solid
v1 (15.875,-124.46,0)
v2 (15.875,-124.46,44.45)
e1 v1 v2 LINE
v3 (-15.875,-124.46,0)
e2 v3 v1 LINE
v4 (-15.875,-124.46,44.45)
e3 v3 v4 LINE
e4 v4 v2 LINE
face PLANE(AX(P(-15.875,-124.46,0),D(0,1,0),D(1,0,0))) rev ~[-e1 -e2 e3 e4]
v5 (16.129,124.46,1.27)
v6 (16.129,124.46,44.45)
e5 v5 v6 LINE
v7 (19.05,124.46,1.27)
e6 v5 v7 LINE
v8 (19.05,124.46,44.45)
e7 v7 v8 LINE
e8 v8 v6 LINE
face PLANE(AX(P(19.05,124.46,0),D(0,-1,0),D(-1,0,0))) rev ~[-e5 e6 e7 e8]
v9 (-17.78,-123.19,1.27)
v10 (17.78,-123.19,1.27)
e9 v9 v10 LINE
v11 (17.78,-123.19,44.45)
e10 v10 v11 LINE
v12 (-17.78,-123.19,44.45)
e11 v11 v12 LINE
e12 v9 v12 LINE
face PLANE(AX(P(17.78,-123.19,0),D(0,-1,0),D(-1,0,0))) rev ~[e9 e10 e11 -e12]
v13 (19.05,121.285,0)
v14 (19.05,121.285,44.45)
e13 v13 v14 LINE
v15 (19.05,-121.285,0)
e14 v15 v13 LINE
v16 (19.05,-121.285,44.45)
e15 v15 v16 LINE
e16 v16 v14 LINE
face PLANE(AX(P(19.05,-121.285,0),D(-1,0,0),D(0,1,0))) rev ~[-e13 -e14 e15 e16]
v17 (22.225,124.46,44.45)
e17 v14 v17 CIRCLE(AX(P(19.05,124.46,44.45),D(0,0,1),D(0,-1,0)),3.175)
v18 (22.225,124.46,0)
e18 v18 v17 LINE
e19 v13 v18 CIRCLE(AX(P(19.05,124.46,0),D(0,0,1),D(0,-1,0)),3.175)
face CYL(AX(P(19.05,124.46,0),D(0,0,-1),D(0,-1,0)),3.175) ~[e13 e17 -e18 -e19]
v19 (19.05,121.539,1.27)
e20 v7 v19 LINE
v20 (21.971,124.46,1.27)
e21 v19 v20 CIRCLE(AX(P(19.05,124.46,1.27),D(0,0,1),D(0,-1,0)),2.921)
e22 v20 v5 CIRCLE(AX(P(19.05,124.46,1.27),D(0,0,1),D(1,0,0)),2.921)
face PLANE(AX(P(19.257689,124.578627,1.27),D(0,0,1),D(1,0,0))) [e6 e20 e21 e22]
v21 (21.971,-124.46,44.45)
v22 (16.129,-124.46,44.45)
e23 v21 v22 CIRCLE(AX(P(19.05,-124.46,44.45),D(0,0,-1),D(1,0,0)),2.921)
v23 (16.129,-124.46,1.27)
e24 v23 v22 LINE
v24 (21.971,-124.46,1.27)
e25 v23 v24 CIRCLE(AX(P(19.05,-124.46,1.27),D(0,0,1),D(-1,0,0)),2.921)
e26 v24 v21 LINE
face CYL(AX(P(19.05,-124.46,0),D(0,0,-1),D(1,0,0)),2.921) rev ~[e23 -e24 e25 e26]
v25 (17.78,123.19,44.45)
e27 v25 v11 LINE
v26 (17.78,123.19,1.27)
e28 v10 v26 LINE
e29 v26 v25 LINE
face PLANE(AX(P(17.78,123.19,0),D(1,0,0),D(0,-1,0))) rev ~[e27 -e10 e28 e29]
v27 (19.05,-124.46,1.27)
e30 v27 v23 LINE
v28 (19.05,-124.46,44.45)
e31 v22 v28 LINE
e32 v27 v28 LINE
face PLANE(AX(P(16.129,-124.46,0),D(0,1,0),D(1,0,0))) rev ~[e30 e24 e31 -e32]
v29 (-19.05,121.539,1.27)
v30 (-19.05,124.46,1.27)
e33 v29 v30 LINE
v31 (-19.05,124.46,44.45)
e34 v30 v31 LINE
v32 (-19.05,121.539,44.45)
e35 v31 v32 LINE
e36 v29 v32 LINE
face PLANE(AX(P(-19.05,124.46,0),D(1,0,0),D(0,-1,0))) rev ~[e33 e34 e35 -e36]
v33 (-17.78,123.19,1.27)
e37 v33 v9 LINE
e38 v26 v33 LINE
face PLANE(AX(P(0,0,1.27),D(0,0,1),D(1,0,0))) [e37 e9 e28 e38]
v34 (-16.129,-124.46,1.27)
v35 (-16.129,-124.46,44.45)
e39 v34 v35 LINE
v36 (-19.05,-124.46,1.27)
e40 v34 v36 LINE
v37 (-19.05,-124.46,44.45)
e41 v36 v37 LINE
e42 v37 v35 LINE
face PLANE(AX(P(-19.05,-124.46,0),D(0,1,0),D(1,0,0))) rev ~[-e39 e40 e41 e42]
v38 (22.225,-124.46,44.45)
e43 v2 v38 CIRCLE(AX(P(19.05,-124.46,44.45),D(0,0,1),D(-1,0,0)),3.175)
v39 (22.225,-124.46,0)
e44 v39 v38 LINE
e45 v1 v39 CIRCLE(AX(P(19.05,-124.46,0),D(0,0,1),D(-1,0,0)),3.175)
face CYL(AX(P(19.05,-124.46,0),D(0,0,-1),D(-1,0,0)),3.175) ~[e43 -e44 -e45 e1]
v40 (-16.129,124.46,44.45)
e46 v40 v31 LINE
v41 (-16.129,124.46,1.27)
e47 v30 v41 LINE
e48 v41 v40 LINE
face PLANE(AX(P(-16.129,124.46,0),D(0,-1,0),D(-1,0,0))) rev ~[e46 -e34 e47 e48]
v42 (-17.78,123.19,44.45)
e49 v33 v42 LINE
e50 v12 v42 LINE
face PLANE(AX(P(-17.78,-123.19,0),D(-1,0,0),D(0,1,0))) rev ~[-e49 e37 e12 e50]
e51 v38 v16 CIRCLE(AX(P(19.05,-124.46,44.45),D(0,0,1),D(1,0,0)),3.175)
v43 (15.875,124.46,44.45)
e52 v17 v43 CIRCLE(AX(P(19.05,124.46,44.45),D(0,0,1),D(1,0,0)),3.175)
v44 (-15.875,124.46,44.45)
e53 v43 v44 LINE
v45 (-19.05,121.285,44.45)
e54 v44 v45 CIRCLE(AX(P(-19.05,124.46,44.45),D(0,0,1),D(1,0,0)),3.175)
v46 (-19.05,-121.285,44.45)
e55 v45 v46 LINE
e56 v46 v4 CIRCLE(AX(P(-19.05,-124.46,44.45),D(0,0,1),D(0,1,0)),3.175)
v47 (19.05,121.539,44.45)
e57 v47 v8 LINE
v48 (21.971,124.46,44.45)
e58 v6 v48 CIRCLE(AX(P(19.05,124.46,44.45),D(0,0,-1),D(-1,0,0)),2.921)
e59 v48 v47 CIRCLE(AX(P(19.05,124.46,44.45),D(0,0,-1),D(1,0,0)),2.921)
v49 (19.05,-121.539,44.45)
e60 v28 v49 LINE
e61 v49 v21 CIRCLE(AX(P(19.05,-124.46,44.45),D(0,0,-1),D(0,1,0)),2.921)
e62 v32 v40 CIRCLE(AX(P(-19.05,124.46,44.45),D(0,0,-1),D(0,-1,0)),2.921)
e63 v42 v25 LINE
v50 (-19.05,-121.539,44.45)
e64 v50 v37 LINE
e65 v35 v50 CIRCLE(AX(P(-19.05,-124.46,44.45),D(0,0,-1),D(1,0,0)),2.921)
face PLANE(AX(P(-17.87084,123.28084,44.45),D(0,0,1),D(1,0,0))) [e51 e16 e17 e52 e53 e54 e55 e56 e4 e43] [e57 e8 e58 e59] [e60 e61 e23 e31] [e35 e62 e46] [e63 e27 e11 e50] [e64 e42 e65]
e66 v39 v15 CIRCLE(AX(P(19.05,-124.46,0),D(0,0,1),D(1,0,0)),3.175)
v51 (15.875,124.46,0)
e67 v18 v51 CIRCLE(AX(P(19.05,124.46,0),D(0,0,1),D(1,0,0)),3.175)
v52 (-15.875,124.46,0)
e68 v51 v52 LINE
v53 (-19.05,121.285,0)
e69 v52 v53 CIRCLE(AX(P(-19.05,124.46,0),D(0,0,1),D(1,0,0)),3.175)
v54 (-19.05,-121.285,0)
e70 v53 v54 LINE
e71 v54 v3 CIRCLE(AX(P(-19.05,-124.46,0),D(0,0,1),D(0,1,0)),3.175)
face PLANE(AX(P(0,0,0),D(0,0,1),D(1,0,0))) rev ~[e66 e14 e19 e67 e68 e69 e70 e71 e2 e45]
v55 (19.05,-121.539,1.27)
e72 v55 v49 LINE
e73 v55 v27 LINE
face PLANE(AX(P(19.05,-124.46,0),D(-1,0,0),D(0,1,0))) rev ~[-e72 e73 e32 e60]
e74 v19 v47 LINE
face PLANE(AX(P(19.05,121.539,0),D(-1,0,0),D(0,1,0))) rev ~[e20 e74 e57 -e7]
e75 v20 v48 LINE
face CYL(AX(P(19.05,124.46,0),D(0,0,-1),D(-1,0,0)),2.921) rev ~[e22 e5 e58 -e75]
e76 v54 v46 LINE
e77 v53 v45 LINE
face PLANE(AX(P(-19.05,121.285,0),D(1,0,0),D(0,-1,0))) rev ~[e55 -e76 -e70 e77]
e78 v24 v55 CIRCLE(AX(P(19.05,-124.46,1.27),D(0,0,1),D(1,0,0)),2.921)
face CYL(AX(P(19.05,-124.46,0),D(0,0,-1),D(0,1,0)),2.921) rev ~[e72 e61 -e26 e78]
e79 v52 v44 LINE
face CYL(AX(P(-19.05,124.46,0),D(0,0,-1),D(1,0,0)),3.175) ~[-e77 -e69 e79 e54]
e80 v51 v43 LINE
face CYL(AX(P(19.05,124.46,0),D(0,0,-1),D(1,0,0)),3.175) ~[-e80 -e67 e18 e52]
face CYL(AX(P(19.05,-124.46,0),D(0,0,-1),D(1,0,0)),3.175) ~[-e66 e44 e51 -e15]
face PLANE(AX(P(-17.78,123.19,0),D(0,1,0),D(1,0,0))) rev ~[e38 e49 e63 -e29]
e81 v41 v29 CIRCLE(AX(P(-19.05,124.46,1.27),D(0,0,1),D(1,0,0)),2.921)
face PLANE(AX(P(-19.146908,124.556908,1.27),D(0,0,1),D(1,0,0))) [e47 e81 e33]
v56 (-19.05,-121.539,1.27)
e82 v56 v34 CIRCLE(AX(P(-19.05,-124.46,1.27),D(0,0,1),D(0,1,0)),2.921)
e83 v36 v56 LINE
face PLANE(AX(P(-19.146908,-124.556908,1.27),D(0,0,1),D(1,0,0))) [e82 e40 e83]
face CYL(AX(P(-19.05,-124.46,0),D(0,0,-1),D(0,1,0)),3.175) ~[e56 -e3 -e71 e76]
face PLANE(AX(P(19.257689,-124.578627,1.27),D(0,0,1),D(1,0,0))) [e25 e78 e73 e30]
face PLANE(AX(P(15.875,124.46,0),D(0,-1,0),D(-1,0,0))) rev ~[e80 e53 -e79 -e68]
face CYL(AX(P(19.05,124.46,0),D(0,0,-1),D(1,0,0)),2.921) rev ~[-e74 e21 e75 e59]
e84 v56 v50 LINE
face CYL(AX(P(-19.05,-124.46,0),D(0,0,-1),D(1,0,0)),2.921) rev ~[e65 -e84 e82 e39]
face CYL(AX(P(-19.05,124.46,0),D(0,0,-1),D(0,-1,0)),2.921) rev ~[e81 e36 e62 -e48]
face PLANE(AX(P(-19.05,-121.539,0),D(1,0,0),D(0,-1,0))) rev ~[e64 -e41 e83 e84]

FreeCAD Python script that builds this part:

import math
import FreeCAD as App
import Part
import Sketcher
from FreeCAD import Vector
Q = App.Units.Quantity

doc = App.newDocument("Part")
body = doc.addObject("PartDesign::Body", "Body")

# Sketch on XY plane
sketch1 = body.newObject("Sketcher::SketchObject", "Sketch")
sketch1.AttachmentSupport = (doc.getObject("XY_Plane"), [""])
sketch1.MapMode = "FlatFace"
sketch1.addGeometry([
    Part.ArcOfCircle(Part.Circle(Vector(-19.1, 124.5, 0), Vector(0, 0, 1), 3.2), math.radians(0), math.radians(270)),  # 0
    Part.LineSegment(Vector(-19.1, 121.3, 0), Vector(-19.1, -121.3, 0)),  # 1
    Part.ArcOfCircle(Part.Circle(Vector(-19.1, -124.5, 0), Vector(0, 0, 1), 3.2), math.radians(90), math.radians(360)),  # 2
    Part.LineSegment(Vector(-15.9, -124.5, 0), Vector(15.9, -124.5, 0)),  # 3
    Part.ArcOfCircle(Part.Circle(Vector(19.1, -124.5, 0), Vector(0, 0, 1), 3.2), math.radians(180), math.radians(360)),  # 4
    Part.ArcOfCircle(Part.Circle(Vector(19.1, -124.5, 0), Vector(0, 0, 1), 3.2), math.radians(0), math.radians(90)),  # 5
    Part.LineSegment(Vector(19.1, -121.3, 0), Vector(19.1, 121.3, 0)),  # 6
    Part.ArcOfCircle(Part.Circle(Vector(19.1, 124.5, 0), Vector(0, 0, 1), 3.2), math.radians(-90), math.radians(0)),  # 7
    Part.ArcOfCircle(Part.Circle(Vector(19.1, 124.5, 0), Vector(0, 0, 1), 3.2), math.radians(0), math.radians(180)),  # 8
    Part.LineSegment(Vector(15.9, 124.5, 0), Vector(-15.9, 124.5, 0)),  # 9
    Part.LineSegment(Vector(-19.1, -124.5, 0), Vector(-16.1, -124.5, 0)),  # 10
    Part.ArcOfCircle(Part.Circle(Vector(-19.1, -124.5, 0), Vector(0, 0, 1), 2.9), math.radians(90), math.radians(360)),  # 11
    Part.LineSegment(Vector(-19.1, -121.5, 0), Vector(-19.1, -124.5, 0)),  # 12
    Part.LineSegment(Vector(-17.8, -123.2, 0), Vector(-17.8, 123.2, 0)),  # 13
    Part.LineSegment(Vector(-17.8, 123.2, 0), Vector(17.8, 123.2, 0)),  # 14
    Part.LineSegment(Vector(17.8, 123.2, 0), Vector(17.8, -123.2, 0)),  # 15
    Part.LineSegment(Vector(17.8, -123.2, 0), Vector(-17.8, -123.2, 0)),  # 16
    Part.LineSegment(Vector(16.1, -124.5, 0), Vector(19.1, -124.5, 0)),  # 17
    Part.LineSegment(Vector(19.1, -124.5, 0), Vector(19.1, -121.5, 0)),  # 18
    Part.ArcOfCircle(Part.Circle(Vector(19.1, -124.5, 0), Vector(0, 0, 1), 2.9), math.radians(0), math.radians(90)),  # 19
    Part.ArcOfCircle(Part.Circle(Vector(19.1, -124.5, 0), Vector(0, 0, 1), 2.9), math.radians(180), math.radians(360)),  # 20
    Part.LineSegment(Vector(-19.1, 124.5, 0), Vector(-19.1, 121.5, 0)),  # 21
    Part.ArcOfCircle(Part.Circle(Vector(-19.1, 124.5, 0), Vector(0, 0, 1), 2.9), math.radians(0), math.radians(270)),  # 22
    Part.LineSegment(Vector(-16.1, 124.5, 0), Vector(-19.1, 124.5, 0)),  # 23
    Part.ArcOfCircle(Part.Circle(Vector(19.1, 124.5, 0), Vector(0, 0, 1), 2.9), math.radians(-90), math.radians(0)),  # 24
    Part.LineSegment(Vector(19.1, 121.5, 0), Vector(19.1, 124.5, 0)),  # 25
    Part.LineSegment(Vector(19.1, 124.5, 0), Vector(16.1, 124.5, 0)),  # 26
    Part.ArcOfCircle(Part.Circle(Vector(19.1, 124.5, 0), Vector(0, 0, 1), 2.9), math.radians(0), math.radians(180)),  # 27
], False)
sketch1.addConstraint([
    Sketcher.Constraint("Coincident", 0, 2, 1, 1),
    Sketcher.Constraint("Coincident", 1, 2, 2, 1),
    Sketcher.Constraint("Coincident", 2, 2, 3, 1),
    Sketcher.Constraint("Coincident", 3, 2, 4, 1),
    Sketcher.Constraint("Tangent", 4, 2, 5, 1),
    Sketcher.Constraint("Coincident", 5, 2, 6, 1),
    Sketcher.Constraint("Coincident", 6, 2, 7, 1),
    Sketcher.Constraint("Tangent", 7, 2, 8, 1),
    Sketcher.Constraint("Coincident", 8, 2, 9, 1),
    Sketcher.Constraint("Coincident", 9, 2, 0, 1),
    Sketcher.Constraint("Coincident", 10, 2, 11, 2),
    Sketcher.Constraint("Coincident", 11, 1, 12, 1),
    Sketcher.Constraint("Coincident", 12, 2, 10, 1),
    Sketcher.Constraint("Coincident", 13, 2, 14, 1),
    Sketcher.Constraint("Coincident", 14, 2, 15, 1),
    Sketcher.Constraint("Coincident", 15, 2, 16, 1),
    Sketcher.Constraint("Coincident", 16, 2, 13, 1),
    Sketcher.Constraint("Coincident", 17, 2, 18, 1),
    Sketcher.Constraint("Coincident", 18, 2, 19, 2),
    Sketcher.Constraint("Tangent", 19, 1, 20, 2),
    Sketcher.Constraint("Coincident", 20, 1, 17, 1),
    Sketcher.Constraint("Coincident", 21, 2, 22, 2),
    Sketcher.Constraint("Coincident", 22, 1, 23, 1),
    Sketcher.Constraint("Coincident", 23, 2, 21, 1),
    Sketcher.Constraint("Coincident", 24, 1, 25, 1),
    Sketcher.Constraint("Coincident", 25, 2, 26, 1),
    Sketcher.Constraint("Coincident", 26, 2, 27, 2),
    Sketcher.Constraint("Tangent", 27, 1, 24, 2),
    Sketcher.Constraint("Vertical", 1),
    Sketcher.Constraint("Horizontal", 3),
    Sketcher.Constraint("Vertical", 6),
    Sketcher.Constraint("Horizontal", 9),
    Sketcher.Constraint("Horizontal", 10),
    Sketcher.Constraint("Vertical", 12),
    Sketcher.Constraint("Vertical", 13),
    Sketcher.Constraint("Horizontal", 14),
    Sketcher.Constraint("Vertical", 15),
    Sketcher.Constraint("Horizontal", 16),
    Sketcher.Constraint("Horizontal", 17),
    Sketcher.Constraint("Vertical", 18),
    Sketcher.Constraint("Vertical", 21),
    Sketcher.Constraint("Horizontal", 23),
    Sketcher.Constraint("Vertical", 25),
    Sketcher.Constraint("Horizontal", 26),
    Sketcher.Constraint("Coincident", 11, 3, 2, 3),
    Sketcher.Constraint("Coincident", 19, 3, 4, 3),
    Sketcher.Constraint("Coincident", 22, 3, 0, 3),
    Sketcher.Constraint("Coincident", 24, 3, 7, 3),
    Sketcher.Constraint("Coincident", 12, 2, 2, 3),
    Sketcher.Constraint("Coincident", 17, 2, 4, 3),
    Sketcher.Constraint("Coincident", 23, 2, 0, 3),
    Sketcher.Constraint("Coincident", 25, 2, 7, 3),
    Sketcher.Constraint("Equal", 0, 2),
    Sketcher.Constraint("Equal", 2, 4),
    Sketcher.Constraint("Equal", 4, 5),
    Sketcher.Constraint("Equal", 5, 7),
    Sketcher.Constraint("Equal", 7, 8),
    Sketcher.Constraint("Equal", 11, 19),
    Sketcher.Constraint("Equal", 19, 20),
    Sketcher.Constraint("Equal", 20, 22),
    Sketcher.Constraint("Equal", 22, 24),
    Sketcher.Constraint("Equal", 24, 27),
    Sketcher.Constraint("Symmetric", 0, 3, 4, 3, -1, 1),
    Sketcher.Constraint("Symmetric", 2, 3, 7, 3, -1, 1),
    Sketcher.Constraint("Symmetric", 13, 2, 15, 2, -1, 1),
    Sketcher.Constraint("Symmetric", 2, 3, 4, 3, -2),
    Sketcher.Constraint("Horizontal", 20, 3, 2, 2),
    Sketcher.Constraint("Horizontal", 3, 2, 4, 2),
    Sketcher.Constraint("Horizontal", 27, 3, 7, 2),
    Sketcher.Constraint("Horizontal", 7, 2, 8, 2),
    Sketcher.Constraint("Horizontal", 17, 2, 19, 1),
    Sketcher.Constraint("Horizontal", 26, 2, 27, 1),
    Sketcher.Constraint("Vertical", 22, 3, 0, 2),
    Sketcher.Constraint("Vertical", 27, 3, 5, 2),
    Sketcher.Constraint("DistanceX", 14, 1, 14, 2, Q("1.4 in")),
    Sketcher.Constraint("DistanceY", 13, 1, 13, 2, Q("9.7 in")),
    Sketcher.Constraint("Radius", 0, Q("0.125 in")),
    Sketcher.Constraint("Radius", 11, Q("0.115 in")),
    Sketcher.Constraint("DistanceX", 3, 1, 3, 2, Q("1.25 in")),
    Sketcher.Constraint("DistanceY", 1, 2, 1, 1, Q("9.55 in")),
])
pad1 = body.newObject("PartDesign::Pad", "Pad")
pad1.Profile = sketch1
pad1.Length = Q("1.75 in")

# Sketch on XY plane
sketch2 = body.newObject("Sketcher::SketchObject", "Sketch001")
sketch2.AttachmentSupport = (doc.getObject("XY_Plane"), [""])
sketch2.MapMode = "FlatFace"
sketch2.addGeometry([
    Part.LineSegment(Vector(-17.8, 123.2, 0), Vector(-17.8, -123.2, 0)),  # 0
    Part.LineSegment(Vector(-17.8, -123.2, 0), Vector(17.8, -123.2, 0)),  # 1
    Part.LineSegment(Vector(17.8, -123.2, 0), Vector(17.8, 123.2, 0)),  # 2
    Part.LineSegment(Vector(17.8, 123.2, 0), Vector(-17.8, 123.2, 0)),  # 3
    Part.LineSegment(Vector(19.1, -124.5, 0), Vector(16.1, -124.5, 0)),  # 4
    Part.ArcOfCircle(Part.Circle(Vector(19.1, -124.5, 0), Vector(0, 0, 1), 2.9), math.radians(180), math.radians(360)),  # 5
    Part.ArcOfCircle(Part.Circle(Vector(19.1, -124.5, 0), Vector(0, 0, 1), 2.9), math.radians(0), math.radians(90)),  # 6
    Part.LineSegment(Vector(19.1, -121.5, 0), Vector(19.1, -124.5, 0)),  # 7
    Part.LineSegment(Vector(-19.1, -124.5, 0), Vector(-19.1, -121.5, 0)),  # 8
    Part.ArcOfCircle(Part.Circle(Vector(-19.1, -124.5, 0), Vector(0, 0, 1), 2.9), math.radians(90), math.radians(360)),  # 9
    Part.LineSegment(Vector(-16.1, -124.5, 0), Vector(-19.1, -124.5, 0)),  # 10
    Part.ArcOfCircle(Part.Circle(Vector(19.1, 124.5, 0), Vector(0, 0, 1), 2.9), math.radians(0), math.radians(180)),  # 11
    Part.LineSegment(Vector(16.1, 124.5, 0), Vector(19.1, 124.5, 0)),  # 12
    Part.LineSegment(Vector(19.1, 124.5, 0), Vector(19.1, 121.5, 0)),  # 13
    Part.ArcOfCircle(Part.Circle(Vector(19.1, 124.5, 0), Vector(0, 0, 1), 2.9), math.radians(-90), math.radians(0)),  # 14
    Part.LineSegment(Vector(-19.1, 121.5, 0), Vector(-19.1, 124.5, 0)),  # 15
    Part.LineSegment(Vector(-19.1, 124.5, 0), Vector(-16.1, 124.5, 0)),  # 16
    Part.ArcOfCircle(Part.Circle(Vector(-19.1, 124.5, 0), Vector(0, 0, 1), 2.9), math.radians(0), math.radians(270)),  # 17
], False)
sketch2.addConstraint([
    Sketcher.Constraint("Coincident", 0, 2, 1, 1),
    Sketcher.Constraint("Coincident", 1, 2, 2, 1),
    Sketcher.Constraint("Coincident", 2, 2, 3, 1),
    Sketcher.Constraint("Coincident", 3, 2, 0, 1),
    Sketcher.Constraint("Coincident", 4, 2, 5, 1),
    Sketcher.Constraint("Tangent", 5, 2, 6, 1),
    Sketcher.Constraint("Coincident", 6, 2, 7, 1),
    Sketcher.Constraint("Coincident", 7, 2, 4, 1),
    Sketcher.Constraint("Coincident", 8, 2, 9, 1),
    Sketcher.Constraint("Coincident", 9, 2, 10, 1),
    Sketcher.Constraint("Coincident", 10, 2, 8, 1),
    Sketcher.Constraint("Coincident", 11, 2, 12, 1),
    Sketcher.Constraint("Coincident", 12, 2, 13, 1),
    Sketcher.Constraint("Coincident", 13, 2, 14, 1),
    Sketcher.Constraint("Tangent", 14, 2, 11, 1),
    Sketcher.Constraint("Coincident", 15, 2, 16, 1),
    Sketcher.Constraint("Coincident", 16, 2, 17, 1),
    Sketcher.Constraint("Coincident", 17, 2, 15, 1),
    Sketcher.Constraint("Vertical", 0),
    Sketcher.Constraint("Horizontal", 1),
    Sketcher.Constraint("Vertical", 2),
    Sketcher.Constraint("Horizontal", 3),
    Sketcher.Constraint("Horizontal", 4),
    Sketcher.Constraint("Vertical", 7),
    Sketcher.Constraint("Vertical", 8),
    Sketcher.Constraint("Horizontal", 10),
    Sketcher.Constraint("Horizontal", 12),
    Sketcher.Constraint("Vertical", 13),
    Sketcher.Constraint("Vertical", 15),
    Sketcher.Constraint("Horizontal", 16),
    Sketcher.Constraint("Coincident", 7, 2, 5, 3),
    Sketcher.Constraint("Coincident", 10, 2, 9, 3),
    Sketcher.Constraint("Coincident", 12, 2, 11, 3),
    Sketcher.Constraint("Coincident", 15, 2, 17, 3),
    Sketcher.Constraint("Equal", 5, 6),
    Sketcher.Constraint("Equal", 6, 9),
    Sketcher.Constraint("Equal", 9, 11),
    Sketcher.Constraint("Equal", 11, 14),
    Sketcher.Constraint("Equal", 14, 17),
    Sketcher.Constraint("Symmetric", 9, 3, 11, 3, -1, 1),
    Sketcher.Constraint("Symmetric", 5, 3, 17, 3, -1, 1),
    Sketcher.Constraint("Symmetric", 0, 2, 2, 2, -1, 1),
    Sketcher.Constraint("Symmetric", 5, 3, 9, 3, -2),
    Sketcher.Constraint("Horizontal", 4, 2, 5, 2),
    Sketcher.Constraint("Horizontal", 12, 2, 14, 2),
    Sketcher.Constraint("DistanceX", 1, 1, 1, 2, Q("1.4 in")),
    Sketcher.Constraint("DistanceY", 0, 2, 0, 1, Q("9.7 in")),
    Sketcher.Constraint("Radius", 5, Q("0.115 in")),
    Sketcher.Constraint("DistanceY", 5, 3, -1, 1, Q("4.9 in")),
    Sketcher.Constraint("DistanceX", 9, 3, 5, 3, Q("1.5 in")),
])
pad2 = body.newObject("PartDesign::Pad", "Pad001")
pad2.Profile = sketch2
pad2.Length = Q("0.05 in")

doc.recompute()
